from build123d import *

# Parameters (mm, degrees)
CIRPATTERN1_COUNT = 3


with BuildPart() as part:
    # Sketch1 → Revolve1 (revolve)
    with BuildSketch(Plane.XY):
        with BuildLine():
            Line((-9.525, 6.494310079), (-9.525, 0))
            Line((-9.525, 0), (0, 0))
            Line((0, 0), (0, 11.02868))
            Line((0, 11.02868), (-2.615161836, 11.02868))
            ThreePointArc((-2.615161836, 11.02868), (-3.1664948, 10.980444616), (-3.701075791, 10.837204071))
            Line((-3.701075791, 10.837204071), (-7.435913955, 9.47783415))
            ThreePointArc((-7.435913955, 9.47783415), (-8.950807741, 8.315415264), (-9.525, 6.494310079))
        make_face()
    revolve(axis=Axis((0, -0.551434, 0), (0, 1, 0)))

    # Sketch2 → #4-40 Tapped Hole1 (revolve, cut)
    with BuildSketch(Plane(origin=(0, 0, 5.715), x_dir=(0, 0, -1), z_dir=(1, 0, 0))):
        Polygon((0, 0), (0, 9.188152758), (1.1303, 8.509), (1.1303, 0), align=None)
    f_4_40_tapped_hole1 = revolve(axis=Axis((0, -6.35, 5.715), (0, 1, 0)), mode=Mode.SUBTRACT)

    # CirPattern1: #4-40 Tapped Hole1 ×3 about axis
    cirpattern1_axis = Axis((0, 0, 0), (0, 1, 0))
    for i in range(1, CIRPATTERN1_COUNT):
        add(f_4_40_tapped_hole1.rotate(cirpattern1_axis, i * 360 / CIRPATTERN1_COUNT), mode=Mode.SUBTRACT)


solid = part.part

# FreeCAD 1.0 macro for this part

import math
import FreeCAD as App
import Part
import Sketcher

V = App.Vector
Q = App.Units.Quantity

doc = App.newDocument("Part")
body = doc.addObject("PartDesign::Body", "Body")

# Sketch on XY plane
sketch1 = body.newObject("Sketcher::SketchObject", "Sketch")
sketch1.AttachmentSupport = (doc.getObject("XY_Plane"), [""])
sketch1.MapMode = "FlatFace"
sketch1.addGeometry([
    Part.LineSegment(V(-9.5, 6.5, 0), V(-9.5, 0, 0)),  # 0
    Part.LineSegment(V(-9.5, 0, 0), V(0, 0, 0)),  # 1
    Part.LineSegment(V(0, 0, 0), V(0, 11, 0)),  # 2
    Part.LineSegment(V(0, 11, 0), V(-2.6, 11, 0)),  # 3
    Part.ArcOfCircle(Part.Circle(V(-2.6, 7.9, 0), V(0, 0, 1), 3.2), math.radians(90), math.radians(110)),  # 4
    Part.LineSegment(V(-3.7, 10.8, 0), V(-7.4, 9.5, 0)),  # 5
    Part.ArcOfCircle(Part.Circle(V(-6.3, 6.5, 0), V(0, 0, 1), 3.2), math.radians(110), math.radians(180)),  # 6
], False)
sketch1.addConstraint([
    Sketcher.Constraint("Coincident", 0, 2, 1, 1),
    Sketcher.Constraint("Coincident", 1, 2, 2, 1),
    Sketcher.Constraint("Coincident", 2, 2, 3, 1),
    Sketcher.Constraint("Tangent", 3, 2, 4, 1),
    Sketcher.Constraint("Tangent", 4, 2, 5, 1),
    Sketcher.Constraint("Tangent", 5, 2, 6, 1),
    Sketcher.Constraint("Tangent", 6, 2, 0, 1),
    Sketcher.Constraint("Vertical", 0),
    Sketcher.Constraint("Horizontal", 1),
    Sketcher.Constraint("Vertical", 2),
    Sketcher.Constraint("Horizontal", 3),
    Sketcher.Constraint("Coincident", 1, 2, -1, 1),
    Sketcher.Constraint("Equal", 4, 6),
    Sketcher.Constraint("Angle", 5, Q("-160 deg")),
    Sketcher.Constraint("Radius", 4, Q("0.125 in")),
    Sketcher.Constraint("DistanceX", 1, 1, 1, 2, Q("0.375 in")),
    Sketcher.Constraint("DistanceY", 2, 1, 2, 2, Q("0.4342 in")),
    Sketcher.Constraint("DistanceX", 3, 2, 3, 1, Q("2.615162 mm")),
])
revolution = body.newObject("PartDesign::Revolution", "Revolution")
revolution.Profile = sketch1
revolution.ReferenceAxis = (sketch1, ["V_Axis"])
revolution.Angle = 360

# Sketch on YZ plane
sketch2 = body.newObject("Sketcher::SketchObject", "Sketch001")
sketch2.AttachmentSupport = (doc.getObject("YZ_Plane"), [""])
sketch2.MapMode = "FlatFace"
sketch2.addGeometry([
    Part.LineSegment(V(9.2, 5.7, 0), V(0, 5.7, 0)),
    Part.LineSegment(V(0, 5.7, 0), V(0, 4.6, 0)),
    Part.LineSegment(V(0, 4.6, 0), V(8.5, 4.6, 0)),
    Part.LineSegment(V(8.5, 4.6, 0), V(9.2, 5.7, 0)),
], False)
sketch2.addGeometry(Part.LineSegment(V(0, 5.7, 0), V(9.2, 5.7, 0)), True)  # axis
sketch2.addConstraint([
    Sketcher.Constraint("Coincident", 0, 2, 1, 1),
    Sketcher.Constraint("Coincident", 1, 2, 2, 1),
    Sketcher.Constraint("Coincident", 2, 2, 3, 1),
    Sketcher.Constraint("Coincident", 3, 2, 0, 1),
    Sketcher.Constraint("Horizontal", 0),
    Sketcher.Constraint("Vertical", 1),
    Sketcher.Constraint("Horizontal", 2),
    Sketcher.Constraint("Horizontal", 4),
    Sketcher.Constraint("Coincident", 4, 1, 0, 2),
    Sketcher.Constraint("PointOnObject", 0, 2, -2),
    Sketcher.Constraint("Equal", 0, 4),
    Sketcher.Constraint("Angle", 3, Q("59 deg")),
    Sketcher.Constraint("DistanceX", 2, 1, 2, 2, Q("0.335 in")),
    Sketcher.Constraint("DistanceY", 1, 2, 1, 1, Q("0.0445 in")),
    Sketcher.Constraint("DistanceY", -1, 1, 0, 2, Q("0.225 in")),
])
groove = body.newObject("PartDesign::Groove", "Groove")
groove.Profile = sketch2
groove.ReferenceAxis = (sketch2, ["Axis0"])
groove.Angle = 360
doc.recompute()

polarpattern = body.newObject("PartDesign::PolarPattern", "PolarPattern")
polarpattern.Originals = [groove]
polarpattern.Axis = (doc.getObject("Y_Axis"), [""])
polarpattern.Angle = 360
polarpattern.Occurrences = 3
body.Tip = polarpattern

doc.recompute()
